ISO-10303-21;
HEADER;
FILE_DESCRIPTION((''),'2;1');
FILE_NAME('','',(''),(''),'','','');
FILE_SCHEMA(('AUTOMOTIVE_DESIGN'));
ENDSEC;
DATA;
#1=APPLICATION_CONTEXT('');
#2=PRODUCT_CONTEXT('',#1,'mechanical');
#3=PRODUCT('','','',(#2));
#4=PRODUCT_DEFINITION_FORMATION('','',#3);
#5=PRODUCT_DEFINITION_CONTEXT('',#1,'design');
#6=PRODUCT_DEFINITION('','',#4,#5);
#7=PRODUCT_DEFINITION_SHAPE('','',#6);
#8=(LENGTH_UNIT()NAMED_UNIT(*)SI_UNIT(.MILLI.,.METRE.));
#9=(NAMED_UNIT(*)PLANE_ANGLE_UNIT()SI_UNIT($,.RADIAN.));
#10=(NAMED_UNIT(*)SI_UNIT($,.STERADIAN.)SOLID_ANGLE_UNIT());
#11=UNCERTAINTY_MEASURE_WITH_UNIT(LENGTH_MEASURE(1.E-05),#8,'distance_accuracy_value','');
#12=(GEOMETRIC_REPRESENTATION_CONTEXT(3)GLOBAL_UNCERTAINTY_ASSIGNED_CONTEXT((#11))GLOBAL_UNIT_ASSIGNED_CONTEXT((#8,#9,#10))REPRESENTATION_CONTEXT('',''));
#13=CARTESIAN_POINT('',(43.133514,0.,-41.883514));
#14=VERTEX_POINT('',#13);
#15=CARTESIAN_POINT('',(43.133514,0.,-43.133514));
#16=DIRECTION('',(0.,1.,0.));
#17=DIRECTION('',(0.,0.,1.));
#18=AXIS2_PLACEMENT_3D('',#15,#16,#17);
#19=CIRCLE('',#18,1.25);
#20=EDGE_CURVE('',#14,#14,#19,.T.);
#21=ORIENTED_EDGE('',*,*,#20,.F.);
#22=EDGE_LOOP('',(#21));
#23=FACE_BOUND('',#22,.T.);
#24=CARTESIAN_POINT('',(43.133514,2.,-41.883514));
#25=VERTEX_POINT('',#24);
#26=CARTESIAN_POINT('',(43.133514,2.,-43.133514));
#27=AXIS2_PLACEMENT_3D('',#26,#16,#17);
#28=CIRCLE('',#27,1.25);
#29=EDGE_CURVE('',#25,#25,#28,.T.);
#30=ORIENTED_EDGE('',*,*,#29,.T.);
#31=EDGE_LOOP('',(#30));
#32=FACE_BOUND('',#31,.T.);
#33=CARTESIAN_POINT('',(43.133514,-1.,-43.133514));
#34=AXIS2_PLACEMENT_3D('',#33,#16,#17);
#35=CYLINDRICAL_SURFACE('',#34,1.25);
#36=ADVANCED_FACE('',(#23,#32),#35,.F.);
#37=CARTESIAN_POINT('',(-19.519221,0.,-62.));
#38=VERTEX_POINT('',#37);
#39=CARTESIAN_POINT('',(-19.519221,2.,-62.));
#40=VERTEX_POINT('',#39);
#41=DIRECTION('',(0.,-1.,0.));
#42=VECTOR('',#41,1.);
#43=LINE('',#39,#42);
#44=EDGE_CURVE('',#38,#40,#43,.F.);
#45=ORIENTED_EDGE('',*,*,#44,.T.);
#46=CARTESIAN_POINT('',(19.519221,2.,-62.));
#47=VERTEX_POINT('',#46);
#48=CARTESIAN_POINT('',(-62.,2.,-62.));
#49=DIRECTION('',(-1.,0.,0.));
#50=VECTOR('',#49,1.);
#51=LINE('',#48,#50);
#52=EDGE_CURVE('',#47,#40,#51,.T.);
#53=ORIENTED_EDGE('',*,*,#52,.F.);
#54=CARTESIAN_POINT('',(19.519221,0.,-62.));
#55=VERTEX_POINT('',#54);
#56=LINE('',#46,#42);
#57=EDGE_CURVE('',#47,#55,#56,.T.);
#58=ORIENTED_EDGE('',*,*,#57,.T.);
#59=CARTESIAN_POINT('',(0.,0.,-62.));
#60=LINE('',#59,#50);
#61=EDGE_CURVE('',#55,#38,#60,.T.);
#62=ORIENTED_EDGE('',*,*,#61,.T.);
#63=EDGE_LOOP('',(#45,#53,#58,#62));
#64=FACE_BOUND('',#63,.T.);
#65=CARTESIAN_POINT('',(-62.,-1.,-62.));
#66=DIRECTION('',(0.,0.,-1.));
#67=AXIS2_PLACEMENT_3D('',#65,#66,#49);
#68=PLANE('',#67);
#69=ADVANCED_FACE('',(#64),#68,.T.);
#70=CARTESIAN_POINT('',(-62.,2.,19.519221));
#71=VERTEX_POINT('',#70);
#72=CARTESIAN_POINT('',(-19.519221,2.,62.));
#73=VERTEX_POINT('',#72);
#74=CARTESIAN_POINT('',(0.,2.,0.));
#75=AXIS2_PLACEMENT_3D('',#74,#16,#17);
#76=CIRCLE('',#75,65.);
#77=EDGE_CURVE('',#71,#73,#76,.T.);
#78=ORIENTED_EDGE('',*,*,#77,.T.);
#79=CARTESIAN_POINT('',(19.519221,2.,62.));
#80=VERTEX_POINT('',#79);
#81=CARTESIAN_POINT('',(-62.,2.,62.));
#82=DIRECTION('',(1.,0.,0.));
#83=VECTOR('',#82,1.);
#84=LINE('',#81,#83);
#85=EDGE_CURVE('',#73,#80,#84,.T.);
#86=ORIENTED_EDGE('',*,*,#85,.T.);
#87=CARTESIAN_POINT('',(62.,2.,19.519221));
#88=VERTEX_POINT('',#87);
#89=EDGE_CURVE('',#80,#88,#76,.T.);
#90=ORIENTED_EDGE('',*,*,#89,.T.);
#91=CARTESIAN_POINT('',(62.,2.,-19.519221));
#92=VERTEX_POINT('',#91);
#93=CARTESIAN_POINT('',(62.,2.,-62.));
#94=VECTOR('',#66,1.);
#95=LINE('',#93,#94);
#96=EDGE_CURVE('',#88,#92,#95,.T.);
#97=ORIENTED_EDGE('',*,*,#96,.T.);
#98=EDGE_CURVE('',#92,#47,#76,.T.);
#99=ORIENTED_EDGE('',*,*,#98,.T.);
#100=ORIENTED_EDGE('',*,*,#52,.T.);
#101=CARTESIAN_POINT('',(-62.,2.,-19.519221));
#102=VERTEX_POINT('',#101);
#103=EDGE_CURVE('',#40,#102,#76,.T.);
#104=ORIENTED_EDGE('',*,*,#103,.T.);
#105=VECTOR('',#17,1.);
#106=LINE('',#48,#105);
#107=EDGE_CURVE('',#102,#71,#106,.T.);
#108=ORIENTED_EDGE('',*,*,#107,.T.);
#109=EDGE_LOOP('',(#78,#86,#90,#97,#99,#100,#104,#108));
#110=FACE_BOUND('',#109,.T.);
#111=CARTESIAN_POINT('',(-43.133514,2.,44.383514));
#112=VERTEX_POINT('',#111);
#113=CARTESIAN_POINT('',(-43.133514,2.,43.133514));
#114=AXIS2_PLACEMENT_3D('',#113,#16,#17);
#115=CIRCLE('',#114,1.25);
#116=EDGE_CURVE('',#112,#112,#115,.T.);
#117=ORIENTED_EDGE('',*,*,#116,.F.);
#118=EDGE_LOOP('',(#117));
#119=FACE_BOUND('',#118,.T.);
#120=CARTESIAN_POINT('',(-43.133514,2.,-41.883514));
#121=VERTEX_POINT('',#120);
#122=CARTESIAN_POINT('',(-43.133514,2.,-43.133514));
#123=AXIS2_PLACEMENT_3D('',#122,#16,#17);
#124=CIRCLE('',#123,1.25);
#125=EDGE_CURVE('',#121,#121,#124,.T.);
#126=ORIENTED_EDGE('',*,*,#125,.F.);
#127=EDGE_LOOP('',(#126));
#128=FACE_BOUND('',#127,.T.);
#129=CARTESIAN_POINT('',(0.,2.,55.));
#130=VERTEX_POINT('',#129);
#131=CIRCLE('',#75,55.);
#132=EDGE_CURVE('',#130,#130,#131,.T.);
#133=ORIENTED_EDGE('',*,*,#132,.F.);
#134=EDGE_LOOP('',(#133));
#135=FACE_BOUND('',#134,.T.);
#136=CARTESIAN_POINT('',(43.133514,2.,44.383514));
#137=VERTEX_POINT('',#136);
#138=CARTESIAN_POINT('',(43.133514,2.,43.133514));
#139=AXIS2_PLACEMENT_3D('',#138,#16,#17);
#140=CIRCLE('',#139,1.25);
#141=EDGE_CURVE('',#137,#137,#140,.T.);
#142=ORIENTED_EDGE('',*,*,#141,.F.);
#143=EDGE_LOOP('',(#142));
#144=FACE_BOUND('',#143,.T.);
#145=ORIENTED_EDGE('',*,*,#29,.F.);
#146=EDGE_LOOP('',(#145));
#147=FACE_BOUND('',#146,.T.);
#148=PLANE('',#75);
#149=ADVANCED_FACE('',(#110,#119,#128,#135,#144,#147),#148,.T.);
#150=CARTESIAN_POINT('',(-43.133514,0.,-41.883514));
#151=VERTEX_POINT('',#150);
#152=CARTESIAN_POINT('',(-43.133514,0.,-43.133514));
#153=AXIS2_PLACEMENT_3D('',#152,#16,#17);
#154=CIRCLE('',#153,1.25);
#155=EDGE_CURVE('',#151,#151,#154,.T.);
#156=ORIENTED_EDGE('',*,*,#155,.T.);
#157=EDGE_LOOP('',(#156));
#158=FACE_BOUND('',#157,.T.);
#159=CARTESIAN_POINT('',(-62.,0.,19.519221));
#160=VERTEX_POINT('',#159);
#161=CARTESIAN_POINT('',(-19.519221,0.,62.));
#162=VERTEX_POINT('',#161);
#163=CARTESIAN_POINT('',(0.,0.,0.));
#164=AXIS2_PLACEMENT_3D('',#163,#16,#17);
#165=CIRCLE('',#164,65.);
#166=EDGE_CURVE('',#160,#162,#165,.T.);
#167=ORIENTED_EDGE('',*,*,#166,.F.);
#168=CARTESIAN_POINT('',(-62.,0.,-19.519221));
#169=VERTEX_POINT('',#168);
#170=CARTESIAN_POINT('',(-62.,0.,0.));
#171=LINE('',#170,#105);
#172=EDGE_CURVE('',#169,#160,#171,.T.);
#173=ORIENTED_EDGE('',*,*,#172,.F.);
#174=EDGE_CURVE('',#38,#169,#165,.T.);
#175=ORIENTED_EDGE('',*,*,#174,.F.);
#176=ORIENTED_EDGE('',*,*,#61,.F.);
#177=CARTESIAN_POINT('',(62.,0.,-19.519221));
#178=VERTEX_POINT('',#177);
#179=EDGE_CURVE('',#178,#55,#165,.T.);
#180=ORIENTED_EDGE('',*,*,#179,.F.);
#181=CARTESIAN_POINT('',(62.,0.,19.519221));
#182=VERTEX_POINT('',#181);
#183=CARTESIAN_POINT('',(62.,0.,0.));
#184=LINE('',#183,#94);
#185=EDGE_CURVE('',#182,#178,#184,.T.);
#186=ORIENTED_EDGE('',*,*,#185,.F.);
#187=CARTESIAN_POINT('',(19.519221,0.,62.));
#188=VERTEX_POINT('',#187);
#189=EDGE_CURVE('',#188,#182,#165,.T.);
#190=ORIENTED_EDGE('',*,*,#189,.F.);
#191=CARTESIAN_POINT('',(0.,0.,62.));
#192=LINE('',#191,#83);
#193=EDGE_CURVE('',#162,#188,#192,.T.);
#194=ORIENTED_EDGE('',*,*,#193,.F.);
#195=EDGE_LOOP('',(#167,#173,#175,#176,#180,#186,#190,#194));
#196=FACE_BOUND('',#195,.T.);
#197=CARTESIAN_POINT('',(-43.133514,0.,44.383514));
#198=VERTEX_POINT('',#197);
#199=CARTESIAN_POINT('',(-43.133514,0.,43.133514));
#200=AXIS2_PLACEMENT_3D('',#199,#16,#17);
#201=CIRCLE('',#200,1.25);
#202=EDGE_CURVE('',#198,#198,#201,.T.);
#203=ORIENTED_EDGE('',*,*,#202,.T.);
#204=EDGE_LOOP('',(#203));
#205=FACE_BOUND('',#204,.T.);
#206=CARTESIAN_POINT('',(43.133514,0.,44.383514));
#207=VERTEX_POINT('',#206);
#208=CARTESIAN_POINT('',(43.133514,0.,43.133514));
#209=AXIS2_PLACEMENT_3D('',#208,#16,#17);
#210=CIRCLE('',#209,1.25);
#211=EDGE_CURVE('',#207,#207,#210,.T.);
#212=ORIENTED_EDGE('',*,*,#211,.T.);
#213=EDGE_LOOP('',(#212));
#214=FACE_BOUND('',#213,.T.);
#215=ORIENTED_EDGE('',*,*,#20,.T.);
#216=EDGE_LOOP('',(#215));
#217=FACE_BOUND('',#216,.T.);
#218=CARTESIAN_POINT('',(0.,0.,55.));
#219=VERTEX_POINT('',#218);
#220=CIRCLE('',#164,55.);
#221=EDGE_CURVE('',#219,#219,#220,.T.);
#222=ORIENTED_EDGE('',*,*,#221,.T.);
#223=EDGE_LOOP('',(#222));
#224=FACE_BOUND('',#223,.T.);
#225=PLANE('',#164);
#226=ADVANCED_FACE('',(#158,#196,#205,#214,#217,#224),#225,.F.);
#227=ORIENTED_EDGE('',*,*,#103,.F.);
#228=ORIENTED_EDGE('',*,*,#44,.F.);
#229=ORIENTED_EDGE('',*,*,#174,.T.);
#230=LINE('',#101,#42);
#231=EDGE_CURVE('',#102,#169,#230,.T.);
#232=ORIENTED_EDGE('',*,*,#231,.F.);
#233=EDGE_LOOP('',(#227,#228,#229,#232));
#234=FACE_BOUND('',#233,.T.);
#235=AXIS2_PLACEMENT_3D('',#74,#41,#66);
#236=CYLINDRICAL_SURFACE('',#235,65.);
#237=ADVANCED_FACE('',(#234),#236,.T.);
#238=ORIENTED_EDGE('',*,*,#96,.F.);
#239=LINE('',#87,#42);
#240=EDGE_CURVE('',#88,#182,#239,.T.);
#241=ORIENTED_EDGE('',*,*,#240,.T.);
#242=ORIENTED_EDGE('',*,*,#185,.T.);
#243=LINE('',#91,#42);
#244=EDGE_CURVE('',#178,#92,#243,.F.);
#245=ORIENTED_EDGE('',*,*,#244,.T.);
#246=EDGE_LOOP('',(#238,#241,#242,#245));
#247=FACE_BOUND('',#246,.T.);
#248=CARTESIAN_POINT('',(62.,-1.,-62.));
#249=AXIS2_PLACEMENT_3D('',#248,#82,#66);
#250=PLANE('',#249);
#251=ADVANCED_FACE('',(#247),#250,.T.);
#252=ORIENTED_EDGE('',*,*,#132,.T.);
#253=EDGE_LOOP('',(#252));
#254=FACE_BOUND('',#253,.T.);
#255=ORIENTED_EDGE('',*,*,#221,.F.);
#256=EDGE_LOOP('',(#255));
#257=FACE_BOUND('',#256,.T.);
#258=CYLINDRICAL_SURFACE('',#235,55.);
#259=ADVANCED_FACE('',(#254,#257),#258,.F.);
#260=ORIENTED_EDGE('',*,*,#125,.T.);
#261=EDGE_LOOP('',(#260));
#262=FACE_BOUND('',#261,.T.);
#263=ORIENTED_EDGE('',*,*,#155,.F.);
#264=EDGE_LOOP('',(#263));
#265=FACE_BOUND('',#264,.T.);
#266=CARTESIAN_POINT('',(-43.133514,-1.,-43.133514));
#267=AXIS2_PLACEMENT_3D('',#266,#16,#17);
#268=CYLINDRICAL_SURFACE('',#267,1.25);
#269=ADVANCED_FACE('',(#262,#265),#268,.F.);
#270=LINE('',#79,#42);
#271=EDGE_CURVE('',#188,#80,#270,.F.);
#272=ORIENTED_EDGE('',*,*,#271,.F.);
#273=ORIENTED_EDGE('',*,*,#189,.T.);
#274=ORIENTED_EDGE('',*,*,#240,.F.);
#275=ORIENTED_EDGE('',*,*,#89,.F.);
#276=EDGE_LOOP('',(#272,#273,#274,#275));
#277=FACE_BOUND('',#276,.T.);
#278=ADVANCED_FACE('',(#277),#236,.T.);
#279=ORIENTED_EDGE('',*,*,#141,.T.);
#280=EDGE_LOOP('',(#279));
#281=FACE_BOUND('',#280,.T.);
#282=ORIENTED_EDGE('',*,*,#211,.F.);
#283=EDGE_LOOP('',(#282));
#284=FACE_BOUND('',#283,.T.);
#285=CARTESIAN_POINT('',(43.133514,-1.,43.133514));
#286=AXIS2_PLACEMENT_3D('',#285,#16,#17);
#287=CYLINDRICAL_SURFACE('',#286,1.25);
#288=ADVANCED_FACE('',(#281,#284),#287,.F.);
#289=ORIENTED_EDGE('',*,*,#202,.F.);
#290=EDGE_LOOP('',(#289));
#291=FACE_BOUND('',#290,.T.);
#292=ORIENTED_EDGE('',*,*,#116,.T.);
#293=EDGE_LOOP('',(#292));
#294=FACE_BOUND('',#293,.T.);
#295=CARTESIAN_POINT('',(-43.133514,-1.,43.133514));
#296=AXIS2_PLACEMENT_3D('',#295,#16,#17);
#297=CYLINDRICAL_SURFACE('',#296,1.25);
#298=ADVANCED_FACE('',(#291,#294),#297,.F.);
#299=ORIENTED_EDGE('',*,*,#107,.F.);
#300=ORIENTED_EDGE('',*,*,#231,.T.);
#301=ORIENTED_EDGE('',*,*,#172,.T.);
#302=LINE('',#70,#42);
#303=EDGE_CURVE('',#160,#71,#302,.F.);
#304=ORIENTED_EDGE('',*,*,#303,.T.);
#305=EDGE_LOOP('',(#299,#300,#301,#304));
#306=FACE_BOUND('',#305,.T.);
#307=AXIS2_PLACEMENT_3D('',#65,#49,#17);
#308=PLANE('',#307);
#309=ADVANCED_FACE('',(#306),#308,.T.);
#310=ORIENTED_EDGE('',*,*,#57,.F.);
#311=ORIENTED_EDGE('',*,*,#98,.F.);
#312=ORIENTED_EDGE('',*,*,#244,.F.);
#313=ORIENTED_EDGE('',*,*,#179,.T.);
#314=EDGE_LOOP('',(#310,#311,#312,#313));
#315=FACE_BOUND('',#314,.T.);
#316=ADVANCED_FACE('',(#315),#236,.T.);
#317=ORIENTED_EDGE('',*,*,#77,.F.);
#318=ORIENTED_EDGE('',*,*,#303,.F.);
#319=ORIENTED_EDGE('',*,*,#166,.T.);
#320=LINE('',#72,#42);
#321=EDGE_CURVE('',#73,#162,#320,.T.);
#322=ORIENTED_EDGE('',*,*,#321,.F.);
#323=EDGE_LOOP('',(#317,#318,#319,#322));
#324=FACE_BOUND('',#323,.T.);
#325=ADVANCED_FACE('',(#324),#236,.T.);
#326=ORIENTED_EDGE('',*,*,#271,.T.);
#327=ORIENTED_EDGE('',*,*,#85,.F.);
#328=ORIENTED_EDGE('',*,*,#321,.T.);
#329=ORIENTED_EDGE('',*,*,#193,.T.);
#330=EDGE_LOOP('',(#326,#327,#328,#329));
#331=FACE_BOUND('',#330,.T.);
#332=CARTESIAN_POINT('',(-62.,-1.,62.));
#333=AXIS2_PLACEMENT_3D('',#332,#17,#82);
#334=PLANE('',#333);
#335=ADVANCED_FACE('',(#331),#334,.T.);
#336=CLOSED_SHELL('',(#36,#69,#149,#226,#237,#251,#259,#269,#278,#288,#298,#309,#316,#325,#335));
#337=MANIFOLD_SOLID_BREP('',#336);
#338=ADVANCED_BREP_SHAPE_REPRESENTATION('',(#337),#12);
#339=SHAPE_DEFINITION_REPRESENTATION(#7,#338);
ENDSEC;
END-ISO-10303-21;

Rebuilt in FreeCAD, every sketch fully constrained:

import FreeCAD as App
import Part
import Sketcher

V = App.Vector


def add_polygon(sketch, points):
    """Adds a closed chain of lines whose ends are joined by coincident constraints."""
    first, n = sketch.GeometryCount, len(points)
    for a, b in zip(points, points[1:] + points[:1]):
        sketch.addGeometry(Part.LineSegment(App.Vector(*a, 0), App.Vector(*b, 0)), False)
    for i in range(n):
        sketch.addConstraint(Sketcher.Constraint("Coincident", first + i, 2, first + (i + 1) % n, 1))

doc = App.newDocument("Part")
body = doc.addObject("PartDesign::Body", "Body")

sketch1 = doc.addObject("Sketcher::SketchObject", "Sketch")
body.addObject(sketch1)
sketch1.AttachmentSupport = (doc.XZ_Plane, [""])
sketch1.MapMode = "FlatFace"
sketch1.addGeometry([
    Part.Circle(V(0, 0, 0), V(0, 0, 1), 65),
    Part.Circle(V(0, 0, 0), V(0, 0, 1), 55),
], False)
sketch1.addConstraint([
    Sketcher.Constraint("Coincident", 0, 3, -1, 1),
    Sketcher.Constraint("Coincident", 1, 3, -1, 1),
    Sketcher.Constraint("Diameter", 0, 130.0),
    Sketcher.Constraint("Diameter", 1, 110.0),
])
pad1 = doc.addObject("PartDesign::Pad", "Pad")
body.addObject(pad1)
pad1.Profile = sketch1
pad1.Length = 2
pad1.Reversed = True

sketch2 = doc.addObject("Sketcher::SketchObject", "Sketch001")
body.addObject(sketch2)
sketch2.AttachmentSupport = (doc.XZ_Plane, [""])
sketch2.MapMode = "FlatFace"
sketch2.AttachmentOffset = App.Placement(V(0, 0, -2), App.Rotation())
add_polygon(sketch2, [(-84.488798, -72.379654), (-84.488798, 72.379654), (84.488798, 72.379654), (84.488798, -72.379654)])
add_polygon(sketch2, [(62, 62), (-62, 62), (-62, -62), (62, -62)])
sketch2.addConstraint([
    Sketcher.Constraint("Vertical", 0),
    Sketcher.Constraint("Horizontal", 1),
    Sketcher.Constraint("Vertical", 2),
    Sketcher.Constraint("Horizontal", 3),
    Sketcher.Constraint("Horizontal", 4),
    Sketcher.Constraint("Vertical", 5),
    Sketcher.Constraint("Horizontal", 6),
    Sketcher.Constraint("Vertical", 7),
    Sketcher.Constraint("Symmetric", 0, 2, 2, 2, -1, 1),
    Sketcher.Constraint("Symmetric", 4, 2, 6, 2, -1, 1),
    Sketcher.Constraint("Equal", 6, 5),
    Sketcher.Constraint("DistanceX", 4, 2, 4, 1, 124.0),
    Sketcher.Constraint("DistanceY", 0, 1, 0, 2, 144.759308),
    Sketcher.Constraint("DistanceX", 1, 1, 1, 2, 168.977595),
])
pocket1 = doc.addObject("PartDesign::Pocket", "Pocket")
body.addObject(pocket1)
pocket1.Profile = sketch2
pocket1.Length = 3
pocket1.Reversed = True

sketch3 = doc.addObject("Sketcher::SketchObject", "Sketch002")
body.addObject(sketch3)
sketch3.AttachmentSupport = (doc.XZ_Plane, [""])
sketch3.MapMode = "FlatFace"
sketch3.AttachmentOffset = App.Placement(V(0, 0, -2), App.Rotation())
sketch3.addGeometry([
    Part.Circle(V(43.133514, 43.133514, 0), V(0, 0, 1), 1.25),
    Part.Circle(V(-43.133514, 43.133514, 0), V(0, 0, 1), 1.25),
    Part.Circle(V(-43.133514, -43.133514, 0), V(0, 0, 1), 1.25),
    Part.Circle(V(43.133514, -43.133514, 0), V(0, 0, 1), 1.25),
], False)
sketch3.addConstraint([
    Sketcher.Constraint("Equal", 0, 1),
    Sketcher.Constraint("Equal", 1, 2),
    Sketcher.Constraint("Equal", 2, 3),
    Sketcher.Constraint("Symmetric", 0, 3, 2, 3, -1, 1),
    Sketcher.Constraint("Symmetric", 1, 3, 3, 3, -1, 1),
    Sketcher.Constraint("Symmetric", 0, 3, 1, 3, -2),
    Sketcher.Constraint("Diameter", 0, 2.5),
    Sketcher.Constraint("DistanceX", -1, 1, 0, 3, 43.133514),
    Sketcher.Constraint("DistanceY", -1, 1, 0, 3, 43.133514),
])
pocket2 = doc.addObject("PartDesign::Pocket", "Pocket001")
body.addObject(pocket2)
pocket2.Profile = sketch3
pocket2.Length = 3
pocket2.Reversed = True

doc.recompute()
